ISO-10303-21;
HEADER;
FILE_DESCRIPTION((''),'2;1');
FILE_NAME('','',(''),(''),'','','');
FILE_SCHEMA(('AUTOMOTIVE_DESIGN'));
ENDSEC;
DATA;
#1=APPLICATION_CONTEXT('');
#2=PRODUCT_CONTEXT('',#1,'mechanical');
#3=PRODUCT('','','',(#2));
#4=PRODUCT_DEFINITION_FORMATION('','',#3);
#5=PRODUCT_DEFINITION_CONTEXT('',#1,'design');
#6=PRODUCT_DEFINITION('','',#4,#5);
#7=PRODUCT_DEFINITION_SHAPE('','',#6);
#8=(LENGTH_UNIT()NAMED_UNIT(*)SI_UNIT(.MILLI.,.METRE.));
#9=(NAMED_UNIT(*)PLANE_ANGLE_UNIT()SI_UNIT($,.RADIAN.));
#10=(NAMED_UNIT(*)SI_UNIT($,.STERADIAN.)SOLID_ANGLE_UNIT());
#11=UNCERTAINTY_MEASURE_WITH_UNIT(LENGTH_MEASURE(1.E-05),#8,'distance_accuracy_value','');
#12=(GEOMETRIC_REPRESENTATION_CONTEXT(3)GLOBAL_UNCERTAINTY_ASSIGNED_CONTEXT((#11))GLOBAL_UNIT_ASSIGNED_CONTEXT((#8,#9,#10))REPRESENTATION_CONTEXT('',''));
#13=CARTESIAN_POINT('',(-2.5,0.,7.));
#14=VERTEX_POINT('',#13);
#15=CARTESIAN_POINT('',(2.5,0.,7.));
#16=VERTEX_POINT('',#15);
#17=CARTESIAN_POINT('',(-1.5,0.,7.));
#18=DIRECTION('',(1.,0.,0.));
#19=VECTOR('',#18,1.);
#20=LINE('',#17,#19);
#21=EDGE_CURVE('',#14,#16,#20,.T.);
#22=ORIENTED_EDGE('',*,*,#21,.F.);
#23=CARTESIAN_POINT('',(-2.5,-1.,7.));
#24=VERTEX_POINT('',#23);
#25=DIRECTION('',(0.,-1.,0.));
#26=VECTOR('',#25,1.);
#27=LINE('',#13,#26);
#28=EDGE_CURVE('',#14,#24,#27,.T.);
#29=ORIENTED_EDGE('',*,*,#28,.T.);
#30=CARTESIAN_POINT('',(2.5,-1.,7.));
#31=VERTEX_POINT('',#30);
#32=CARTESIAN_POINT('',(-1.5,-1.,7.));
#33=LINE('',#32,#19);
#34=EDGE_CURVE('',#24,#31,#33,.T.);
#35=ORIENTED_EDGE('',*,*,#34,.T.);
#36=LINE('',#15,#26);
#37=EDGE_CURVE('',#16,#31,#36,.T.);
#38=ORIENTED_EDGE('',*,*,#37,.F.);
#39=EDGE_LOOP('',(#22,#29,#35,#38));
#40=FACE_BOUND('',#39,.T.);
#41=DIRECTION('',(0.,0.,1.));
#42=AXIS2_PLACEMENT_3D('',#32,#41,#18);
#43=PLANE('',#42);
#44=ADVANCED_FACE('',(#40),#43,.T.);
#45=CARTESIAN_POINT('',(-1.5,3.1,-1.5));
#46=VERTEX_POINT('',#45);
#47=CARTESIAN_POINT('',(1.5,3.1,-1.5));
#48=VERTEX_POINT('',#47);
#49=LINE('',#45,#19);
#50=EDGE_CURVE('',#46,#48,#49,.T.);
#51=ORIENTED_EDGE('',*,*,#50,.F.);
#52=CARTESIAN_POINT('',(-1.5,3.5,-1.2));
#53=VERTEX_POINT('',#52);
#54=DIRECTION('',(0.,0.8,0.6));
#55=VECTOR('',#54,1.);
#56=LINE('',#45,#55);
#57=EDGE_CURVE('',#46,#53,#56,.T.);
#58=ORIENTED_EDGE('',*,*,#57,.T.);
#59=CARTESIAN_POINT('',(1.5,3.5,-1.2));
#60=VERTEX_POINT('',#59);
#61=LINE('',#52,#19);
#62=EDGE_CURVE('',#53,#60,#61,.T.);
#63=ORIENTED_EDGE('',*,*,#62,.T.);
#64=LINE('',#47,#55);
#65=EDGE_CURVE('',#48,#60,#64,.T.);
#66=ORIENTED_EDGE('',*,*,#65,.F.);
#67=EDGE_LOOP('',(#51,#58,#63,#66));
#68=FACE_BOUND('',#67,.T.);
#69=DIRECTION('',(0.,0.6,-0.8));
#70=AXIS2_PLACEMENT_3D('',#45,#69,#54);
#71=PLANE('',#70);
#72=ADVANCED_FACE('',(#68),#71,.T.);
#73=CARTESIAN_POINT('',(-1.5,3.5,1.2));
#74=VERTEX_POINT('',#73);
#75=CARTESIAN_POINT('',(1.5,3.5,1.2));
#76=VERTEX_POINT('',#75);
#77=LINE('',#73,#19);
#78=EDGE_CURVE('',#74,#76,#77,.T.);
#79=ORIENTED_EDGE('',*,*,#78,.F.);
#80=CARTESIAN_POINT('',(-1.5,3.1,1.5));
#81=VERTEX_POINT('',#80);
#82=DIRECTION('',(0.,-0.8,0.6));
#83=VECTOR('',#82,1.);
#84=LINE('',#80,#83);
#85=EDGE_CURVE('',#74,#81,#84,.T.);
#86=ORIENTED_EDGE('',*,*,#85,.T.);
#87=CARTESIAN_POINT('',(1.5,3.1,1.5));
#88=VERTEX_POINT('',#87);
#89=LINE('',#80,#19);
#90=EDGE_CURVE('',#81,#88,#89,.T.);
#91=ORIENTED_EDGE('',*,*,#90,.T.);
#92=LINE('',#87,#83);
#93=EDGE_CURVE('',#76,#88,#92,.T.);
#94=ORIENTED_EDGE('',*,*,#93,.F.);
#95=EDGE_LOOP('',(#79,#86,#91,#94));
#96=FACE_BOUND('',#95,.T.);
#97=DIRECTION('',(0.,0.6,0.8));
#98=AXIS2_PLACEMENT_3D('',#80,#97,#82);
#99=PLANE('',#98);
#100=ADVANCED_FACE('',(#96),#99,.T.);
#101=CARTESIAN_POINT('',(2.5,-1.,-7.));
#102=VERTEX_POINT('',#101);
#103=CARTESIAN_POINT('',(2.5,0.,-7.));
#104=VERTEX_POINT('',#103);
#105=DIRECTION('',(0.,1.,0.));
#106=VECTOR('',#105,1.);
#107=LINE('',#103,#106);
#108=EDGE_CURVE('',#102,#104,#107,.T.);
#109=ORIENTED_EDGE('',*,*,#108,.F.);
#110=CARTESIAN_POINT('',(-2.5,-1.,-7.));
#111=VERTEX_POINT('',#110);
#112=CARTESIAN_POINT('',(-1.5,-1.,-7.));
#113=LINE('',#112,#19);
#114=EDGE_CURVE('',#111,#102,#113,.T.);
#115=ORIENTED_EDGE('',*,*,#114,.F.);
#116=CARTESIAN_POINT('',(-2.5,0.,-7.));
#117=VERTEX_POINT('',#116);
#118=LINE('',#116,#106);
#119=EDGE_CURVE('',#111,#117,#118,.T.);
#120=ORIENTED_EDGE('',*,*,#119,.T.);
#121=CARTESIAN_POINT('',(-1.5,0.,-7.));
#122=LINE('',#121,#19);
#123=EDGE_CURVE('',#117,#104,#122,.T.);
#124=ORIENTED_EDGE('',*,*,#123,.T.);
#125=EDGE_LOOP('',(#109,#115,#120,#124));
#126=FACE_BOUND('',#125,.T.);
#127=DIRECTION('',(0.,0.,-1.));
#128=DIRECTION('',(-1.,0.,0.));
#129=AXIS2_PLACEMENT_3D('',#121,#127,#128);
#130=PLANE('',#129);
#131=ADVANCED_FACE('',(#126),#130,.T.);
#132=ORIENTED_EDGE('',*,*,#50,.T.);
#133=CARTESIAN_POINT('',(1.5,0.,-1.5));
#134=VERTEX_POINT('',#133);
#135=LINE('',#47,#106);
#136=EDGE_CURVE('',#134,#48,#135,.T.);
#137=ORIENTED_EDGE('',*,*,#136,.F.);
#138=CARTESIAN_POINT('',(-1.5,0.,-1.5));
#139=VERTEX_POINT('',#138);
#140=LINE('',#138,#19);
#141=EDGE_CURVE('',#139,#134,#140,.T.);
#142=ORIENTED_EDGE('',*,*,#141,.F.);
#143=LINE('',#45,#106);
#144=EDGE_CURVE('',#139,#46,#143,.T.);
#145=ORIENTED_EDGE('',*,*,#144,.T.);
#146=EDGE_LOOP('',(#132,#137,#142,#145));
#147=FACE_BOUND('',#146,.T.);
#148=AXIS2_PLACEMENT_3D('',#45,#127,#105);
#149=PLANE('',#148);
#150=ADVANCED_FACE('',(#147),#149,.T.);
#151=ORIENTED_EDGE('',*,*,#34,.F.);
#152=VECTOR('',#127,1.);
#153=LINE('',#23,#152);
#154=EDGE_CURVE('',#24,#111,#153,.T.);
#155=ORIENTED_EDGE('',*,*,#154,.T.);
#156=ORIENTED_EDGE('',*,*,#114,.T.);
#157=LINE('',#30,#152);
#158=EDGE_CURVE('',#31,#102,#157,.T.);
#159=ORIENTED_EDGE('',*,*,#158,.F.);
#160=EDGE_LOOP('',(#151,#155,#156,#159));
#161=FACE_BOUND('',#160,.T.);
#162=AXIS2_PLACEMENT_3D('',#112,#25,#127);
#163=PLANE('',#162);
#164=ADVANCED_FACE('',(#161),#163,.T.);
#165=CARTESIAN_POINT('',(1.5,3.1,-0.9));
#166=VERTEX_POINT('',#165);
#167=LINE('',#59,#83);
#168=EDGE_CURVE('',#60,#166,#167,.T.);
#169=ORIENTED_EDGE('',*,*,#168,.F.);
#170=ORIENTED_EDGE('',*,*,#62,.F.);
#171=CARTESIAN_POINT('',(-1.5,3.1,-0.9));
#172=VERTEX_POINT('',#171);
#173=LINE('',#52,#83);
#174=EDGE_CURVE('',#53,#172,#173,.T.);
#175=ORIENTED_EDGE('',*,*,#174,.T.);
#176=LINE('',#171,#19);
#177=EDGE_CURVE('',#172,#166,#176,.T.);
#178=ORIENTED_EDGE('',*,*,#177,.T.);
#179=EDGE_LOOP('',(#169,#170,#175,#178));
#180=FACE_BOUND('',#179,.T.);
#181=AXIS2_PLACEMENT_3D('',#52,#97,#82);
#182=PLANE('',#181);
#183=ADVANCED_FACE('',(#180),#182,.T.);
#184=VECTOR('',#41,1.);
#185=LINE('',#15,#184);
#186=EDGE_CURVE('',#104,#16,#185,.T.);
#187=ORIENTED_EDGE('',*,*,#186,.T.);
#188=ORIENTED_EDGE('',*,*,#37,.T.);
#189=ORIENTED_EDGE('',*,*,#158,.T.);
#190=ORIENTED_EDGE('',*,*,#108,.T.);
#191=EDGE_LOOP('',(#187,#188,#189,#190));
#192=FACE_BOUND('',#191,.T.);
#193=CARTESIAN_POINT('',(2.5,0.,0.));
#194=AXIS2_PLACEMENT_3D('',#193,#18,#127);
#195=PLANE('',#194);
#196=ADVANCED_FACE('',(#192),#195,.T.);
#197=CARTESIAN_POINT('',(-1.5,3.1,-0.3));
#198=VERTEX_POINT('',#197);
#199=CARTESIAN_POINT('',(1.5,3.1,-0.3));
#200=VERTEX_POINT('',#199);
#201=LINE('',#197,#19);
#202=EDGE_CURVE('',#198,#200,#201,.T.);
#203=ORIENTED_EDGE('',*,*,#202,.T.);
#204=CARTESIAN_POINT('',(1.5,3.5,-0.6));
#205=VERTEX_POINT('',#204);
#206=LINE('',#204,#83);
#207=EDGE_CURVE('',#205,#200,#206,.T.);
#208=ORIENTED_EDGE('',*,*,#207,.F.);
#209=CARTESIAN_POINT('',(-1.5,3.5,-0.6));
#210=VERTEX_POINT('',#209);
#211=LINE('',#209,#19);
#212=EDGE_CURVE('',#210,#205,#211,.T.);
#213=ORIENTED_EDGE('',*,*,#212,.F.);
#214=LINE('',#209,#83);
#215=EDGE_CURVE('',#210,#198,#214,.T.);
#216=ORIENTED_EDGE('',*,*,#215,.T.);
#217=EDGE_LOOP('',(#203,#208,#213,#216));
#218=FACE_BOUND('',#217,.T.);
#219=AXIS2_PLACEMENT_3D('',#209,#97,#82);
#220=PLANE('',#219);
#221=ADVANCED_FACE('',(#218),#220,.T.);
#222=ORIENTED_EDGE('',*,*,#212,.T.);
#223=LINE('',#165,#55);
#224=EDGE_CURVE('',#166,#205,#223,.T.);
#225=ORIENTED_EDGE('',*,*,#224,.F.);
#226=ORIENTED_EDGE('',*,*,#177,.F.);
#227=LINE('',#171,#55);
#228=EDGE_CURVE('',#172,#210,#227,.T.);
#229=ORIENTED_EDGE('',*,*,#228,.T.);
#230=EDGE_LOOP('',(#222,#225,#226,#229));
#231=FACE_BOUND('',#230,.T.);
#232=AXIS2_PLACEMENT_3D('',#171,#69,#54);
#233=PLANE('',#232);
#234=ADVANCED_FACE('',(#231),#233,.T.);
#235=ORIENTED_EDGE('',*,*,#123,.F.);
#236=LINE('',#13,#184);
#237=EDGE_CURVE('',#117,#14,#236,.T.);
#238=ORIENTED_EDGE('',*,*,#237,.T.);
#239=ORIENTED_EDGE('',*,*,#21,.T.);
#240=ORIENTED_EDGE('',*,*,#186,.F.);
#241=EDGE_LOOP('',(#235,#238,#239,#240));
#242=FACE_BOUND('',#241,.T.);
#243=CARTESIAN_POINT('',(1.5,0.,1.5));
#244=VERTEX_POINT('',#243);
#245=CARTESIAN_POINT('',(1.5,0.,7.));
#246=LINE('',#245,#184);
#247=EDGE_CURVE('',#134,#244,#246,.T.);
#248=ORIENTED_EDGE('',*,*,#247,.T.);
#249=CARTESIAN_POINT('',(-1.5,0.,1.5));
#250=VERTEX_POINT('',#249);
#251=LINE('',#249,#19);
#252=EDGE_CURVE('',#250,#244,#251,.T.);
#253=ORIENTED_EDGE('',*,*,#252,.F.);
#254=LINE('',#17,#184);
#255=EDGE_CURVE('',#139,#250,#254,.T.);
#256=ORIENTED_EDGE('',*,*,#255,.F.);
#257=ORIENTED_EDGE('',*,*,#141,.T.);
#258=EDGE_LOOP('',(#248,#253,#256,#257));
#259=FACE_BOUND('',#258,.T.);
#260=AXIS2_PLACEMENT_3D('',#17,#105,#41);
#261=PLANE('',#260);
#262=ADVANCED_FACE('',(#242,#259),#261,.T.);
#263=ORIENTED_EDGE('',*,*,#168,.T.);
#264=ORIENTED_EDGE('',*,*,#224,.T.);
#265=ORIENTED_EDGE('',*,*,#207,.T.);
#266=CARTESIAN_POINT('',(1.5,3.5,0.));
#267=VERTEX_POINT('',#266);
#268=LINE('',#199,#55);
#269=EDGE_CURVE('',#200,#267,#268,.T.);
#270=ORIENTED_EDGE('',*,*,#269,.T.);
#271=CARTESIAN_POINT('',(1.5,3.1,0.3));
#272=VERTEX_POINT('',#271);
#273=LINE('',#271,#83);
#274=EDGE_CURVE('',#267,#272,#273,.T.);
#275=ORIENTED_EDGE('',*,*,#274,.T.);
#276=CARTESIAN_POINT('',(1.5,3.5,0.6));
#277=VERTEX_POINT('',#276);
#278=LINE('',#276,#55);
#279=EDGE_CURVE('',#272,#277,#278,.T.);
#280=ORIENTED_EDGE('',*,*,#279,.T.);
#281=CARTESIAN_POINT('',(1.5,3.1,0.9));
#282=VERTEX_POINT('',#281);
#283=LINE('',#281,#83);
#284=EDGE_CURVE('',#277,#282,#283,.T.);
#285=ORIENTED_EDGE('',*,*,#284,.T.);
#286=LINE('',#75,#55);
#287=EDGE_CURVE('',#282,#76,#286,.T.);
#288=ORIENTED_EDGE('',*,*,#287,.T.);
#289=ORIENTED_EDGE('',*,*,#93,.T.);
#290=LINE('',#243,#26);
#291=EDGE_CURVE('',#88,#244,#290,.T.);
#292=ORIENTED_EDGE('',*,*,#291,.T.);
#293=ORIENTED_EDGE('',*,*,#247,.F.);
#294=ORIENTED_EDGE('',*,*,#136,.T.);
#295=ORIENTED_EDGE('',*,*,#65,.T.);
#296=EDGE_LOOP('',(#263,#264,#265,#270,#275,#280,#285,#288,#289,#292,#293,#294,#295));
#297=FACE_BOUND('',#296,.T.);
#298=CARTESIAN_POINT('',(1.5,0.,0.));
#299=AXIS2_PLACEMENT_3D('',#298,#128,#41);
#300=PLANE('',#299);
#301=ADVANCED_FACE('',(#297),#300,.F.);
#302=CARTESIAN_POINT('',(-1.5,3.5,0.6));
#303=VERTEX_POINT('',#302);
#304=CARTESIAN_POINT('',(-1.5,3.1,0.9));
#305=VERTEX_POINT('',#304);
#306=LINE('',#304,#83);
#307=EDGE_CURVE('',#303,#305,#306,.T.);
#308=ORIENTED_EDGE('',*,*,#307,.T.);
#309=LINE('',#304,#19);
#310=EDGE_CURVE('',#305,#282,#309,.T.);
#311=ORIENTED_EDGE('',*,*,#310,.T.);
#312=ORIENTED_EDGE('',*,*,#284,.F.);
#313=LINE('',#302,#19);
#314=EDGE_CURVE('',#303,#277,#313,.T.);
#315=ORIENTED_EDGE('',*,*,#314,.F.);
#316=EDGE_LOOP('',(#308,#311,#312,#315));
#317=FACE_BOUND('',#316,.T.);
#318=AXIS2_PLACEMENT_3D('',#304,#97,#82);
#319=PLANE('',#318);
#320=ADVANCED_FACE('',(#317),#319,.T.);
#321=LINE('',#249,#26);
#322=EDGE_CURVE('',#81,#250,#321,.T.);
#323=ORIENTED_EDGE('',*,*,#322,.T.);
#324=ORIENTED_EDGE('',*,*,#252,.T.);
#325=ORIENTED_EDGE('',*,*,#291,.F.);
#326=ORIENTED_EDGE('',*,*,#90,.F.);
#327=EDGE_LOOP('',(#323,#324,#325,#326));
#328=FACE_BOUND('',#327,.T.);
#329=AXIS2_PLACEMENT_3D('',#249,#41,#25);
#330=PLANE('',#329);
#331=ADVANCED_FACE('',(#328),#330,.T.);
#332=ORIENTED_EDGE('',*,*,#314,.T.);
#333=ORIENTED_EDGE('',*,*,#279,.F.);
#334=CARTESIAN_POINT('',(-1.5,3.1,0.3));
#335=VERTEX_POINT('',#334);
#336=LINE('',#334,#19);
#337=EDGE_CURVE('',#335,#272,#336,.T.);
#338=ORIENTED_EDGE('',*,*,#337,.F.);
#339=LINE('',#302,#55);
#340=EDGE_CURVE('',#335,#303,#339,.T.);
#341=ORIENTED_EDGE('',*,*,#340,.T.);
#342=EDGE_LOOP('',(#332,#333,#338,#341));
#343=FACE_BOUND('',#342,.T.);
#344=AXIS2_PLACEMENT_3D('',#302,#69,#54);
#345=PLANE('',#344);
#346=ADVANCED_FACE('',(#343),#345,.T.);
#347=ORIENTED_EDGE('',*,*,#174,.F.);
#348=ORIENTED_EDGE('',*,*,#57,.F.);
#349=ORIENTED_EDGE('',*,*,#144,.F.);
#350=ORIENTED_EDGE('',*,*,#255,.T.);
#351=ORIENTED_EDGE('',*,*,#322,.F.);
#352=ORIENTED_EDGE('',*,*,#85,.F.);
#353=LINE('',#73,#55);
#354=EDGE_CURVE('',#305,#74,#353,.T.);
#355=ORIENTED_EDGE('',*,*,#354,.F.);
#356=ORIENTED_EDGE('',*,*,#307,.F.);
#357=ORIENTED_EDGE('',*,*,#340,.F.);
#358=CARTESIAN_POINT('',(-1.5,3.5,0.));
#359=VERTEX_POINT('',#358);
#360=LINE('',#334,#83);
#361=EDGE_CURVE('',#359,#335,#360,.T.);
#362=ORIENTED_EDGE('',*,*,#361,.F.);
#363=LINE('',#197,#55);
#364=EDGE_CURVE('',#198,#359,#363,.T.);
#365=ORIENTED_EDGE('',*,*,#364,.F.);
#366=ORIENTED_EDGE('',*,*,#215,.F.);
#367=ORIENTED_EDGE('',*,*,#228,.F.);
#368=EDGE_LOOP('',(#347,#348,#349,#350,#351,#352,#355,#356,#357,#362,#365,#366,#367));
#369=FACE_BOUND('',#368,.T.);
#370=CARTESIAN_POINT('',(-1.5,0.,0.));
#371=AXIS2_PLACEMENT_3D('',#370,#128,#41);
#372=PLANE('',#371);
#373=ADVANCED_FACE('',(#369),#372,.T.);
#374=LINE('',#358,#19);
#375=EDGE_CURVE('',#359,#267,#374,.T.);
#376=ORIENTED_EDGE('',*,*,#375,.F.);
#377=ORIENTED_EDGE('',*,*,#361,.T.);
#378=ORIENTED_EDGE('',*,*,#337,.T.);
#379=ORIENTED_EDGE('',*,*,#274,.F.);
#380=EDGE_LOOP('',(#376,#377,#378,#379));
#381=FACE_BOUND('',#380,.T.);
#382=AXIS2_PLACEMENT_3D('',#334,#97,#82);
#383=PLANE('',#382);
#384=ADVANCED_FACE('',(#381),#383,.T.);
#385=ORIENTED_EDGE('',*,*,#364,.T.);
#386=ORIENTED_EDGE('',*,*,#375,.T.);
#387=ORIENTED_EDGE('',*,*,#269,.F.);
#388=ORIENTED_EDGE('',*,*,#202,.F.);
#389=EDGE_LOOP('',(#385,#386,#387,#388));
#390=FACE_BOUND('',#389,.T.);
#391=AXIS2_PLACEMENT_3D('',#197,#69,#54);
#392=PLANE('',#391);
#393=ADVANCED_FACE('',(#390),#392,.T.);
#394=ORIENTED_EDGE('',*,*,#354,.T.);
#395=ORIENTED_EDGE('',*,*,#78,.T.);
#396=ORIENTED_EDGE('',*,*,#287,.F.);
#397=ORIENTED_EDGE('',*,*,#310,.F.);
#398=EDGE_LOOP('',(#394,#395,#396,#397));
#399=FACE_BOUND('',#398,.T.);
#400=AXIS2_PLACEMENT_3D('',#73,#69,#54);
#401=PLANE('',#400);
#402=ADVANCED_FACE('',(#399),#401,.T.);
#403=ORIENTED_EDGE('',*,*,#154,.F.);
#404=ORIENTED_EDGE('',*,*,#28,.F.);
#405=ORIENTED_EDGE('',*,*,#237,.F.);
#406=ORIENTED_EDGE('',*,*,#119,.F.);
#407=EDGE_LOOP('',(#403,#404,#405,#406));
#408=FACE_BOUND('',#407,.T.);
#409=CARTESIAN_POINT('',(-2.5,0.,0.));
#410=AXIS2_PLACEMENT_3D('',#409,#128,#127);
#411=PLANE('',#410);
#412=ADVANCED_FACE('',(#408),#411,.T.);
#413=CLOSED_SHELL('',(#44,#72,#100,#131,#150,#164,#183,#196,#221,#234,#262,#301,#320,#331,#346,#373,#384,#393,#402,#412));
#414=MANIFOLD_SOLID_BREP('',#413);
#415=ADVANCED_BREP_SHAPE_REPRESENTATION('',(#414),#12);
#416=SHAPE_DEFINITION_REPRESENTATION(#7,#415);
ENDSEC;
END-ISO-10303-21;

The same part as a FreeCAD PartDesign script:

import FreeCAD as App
import Part
import Sketcher
from FreeCAD import Vector


def add_polygon(sketch, points):
    """Adds a closed chain of lines whose ends are joined by coincident constraints."""
    first, n = sketch.GeometryCount, len(points)
    for a, b in zip(points, points[1:] + points[:1]):
        sketch.addGeometry(Part.LineSegment(App.Vector(*a, 0), App.Vector(*b, 0)), False)
    for i in range(n):
        sketch.addConstraint(Sketcher.Constraint("Coincident", first + i, 2, first + (i + 1) % n, 1))

doc = App.newDocument("Part")
body = doc.addObject("PartDesign::Body", "Body")

sketch1 = body.newObject("Sketcher::SketchObject", "Sketch")
sketch1.AttachmentSupport = (doc.getObject("YZ_Plane"), [""])
sketch1.MapMode = "FlatFace"
add_polygon(sketch1, [(0, 1.5), (0, 7), (-1, 7), (-1, -7), (0, -7), (0, -1.5), (3.1, -1.5), (3.5, -1.2), (3.1, -0.9), (3.5, -0.6), (3.1, -0.3), (3.5, 0), (3.1, 0.3), (3.5, 0.6), (3.1, 0.9), (3.5, 1.2), (3.1, 1.5)])
sketch1.addConstraint(Sketcher.Constraint("Vertical", 0))
sketch1.addConstraint(Sketcher.Constraint("Horizontal", 1))
sketch1.addConstraint(Sketcher.Constraint("Vertical", 2))
sketch1.addConstraint(Sketcher.Constraint("Horizontal", 3))
sketch1.addConstraint(Sketcher.Constraint("Vertical", 4))
sketch1.addConstraint(Sketcher.Constraint("Horizontal", 5))
sketch1.addConstraint(Sketcher.Constraint("Horizontal", 16))
sketch1.addConstraint(Sketcher.Constraint("Symmetric", 0, 2, 3, 2, -1, 1))
sketch1.addConstraint(Sketcher.Constraint("Symmetric", 9, 2, 11, 2, -1))
sketch1.addConstraint(Sketcher.Constraint("Symmetric", 8, 2, 12, 2, -1))
sketch1.addConstraint(Sketcher.Constraint("Symmetric", 7, 2, 13, 2, -1))
sketch1.addConstraint(Sketcher.Constraint("Symmetric", 6, 2, 14, 2, -1))
sketch1.addConstraint(Sketcher.Constraint("Symmetric", 5, 2, 15, 2, -1))
sketch1.addConstraint(Sketcher.Constraint("PointOnObject", 0, 2, -2))
sketch1.addConstraint(Sketcher.Constraint("PointOnObject", 10, 2, -1))
sketch1.addConstraint(Sketcher.Constraint("Parallel", 6, 8))
sketch1.addConstraint(Sketcher.Constraint("Parallel", 7, 9))
sketch1.addConstraint(Sketcher.Constraint("Parallel", 8, 10))
sketch1.addConstraint(Sketcher.Constraint("Parallel", 9, 11))
sketch1.addConstraint(Sketcher.Constraint("Vertical", 5, 2, 7, 2))
sketch1.addConstraint(Sketcher.Constraint("Vertical", 6, 2, 8, 2))
sketch1.addConstraint(Sketcher.Constraint("Vertical", 7, 2, 9, 2))
sketch1.addConstraint(Sketcher.Constraint("Vertical", 8, 2, 10, 2))
sketch1.addConstraint(Sketcher.Constraint("DistanceX", 1, 2, 1, 1, 1.0))
sketch1.addConstraint(Sketcher.Constraint("DistanceY", 2, 2, 2, 1, 14.0))
sketch1.addConstraint(Sketcher.Constraint("DistanceX", 5, 1, 5, 2, 3.1))
sketch1.addConstraint(Sketcher.Constraint("DistanceY", 0, 1, 0, 2, 5.5))
sketch1.addConstraint(Sketcher.Constraint("Distance", 6, 0.5))
pad1 = body.newObject("PartDesign::Pad", "Pad")
pad1.Profile = sketch1
pad1.Type = "TwoLengths"
pad1.Length = 1.5
pad1.Length2 = 1.5

sketch2 = body.newObject("Sketcher::SketchObject", "Sketch001")
sketch2.AttachmentSupport = (doc.getObject("YZ_Plane"), [""])
sketch2.MapMode = "FlatFace"
sketch2.AttachmentOffset = App.Placement(Vector(0, 0, 1.5), App.Rotation())
add_polygon(sketch2, [(0, 7), (-1, 7), (-1, -7), (0, -7)])
sketch2.addConstraint(Sketcher.Constraint("Horizontal", 0))
sketch2.addConstraint(Sketcher.Constraint("Vertical", 1))
sketch2.addConstraint(Sketcher.Constraint("Horizontal", 2))
sketch2.addConstraint(Sketcher.Constraint("Vertical", 3))
sketch2.addConstraint(Sketcher.Constraint("Symmetric", 2, 2, 3, 2, -1, 1))
sketch2.addConstraint(Sketcher.Constraint("DistanceX", 0, 2, 0, 1, 1.0))
sketch2.addConstraint(Sketcher.Constraint("DistanceY", 1, 2, 1, 1, 14.0))
pad2 = body.newObject("PartDesign::Pad", "Pad001")
pad2.Profile = sketch2
pad2.Length = 1
doc.recompute()

mirrored = body.newObject("PartDesign::Mirrored", "Mirrored")
mirrored.Originals = [pad2]
mirrored.MirrorPlane = (doc.getObject("YZ_Plane"), [""])
body.Tip = mirrored

doc.recompute()
